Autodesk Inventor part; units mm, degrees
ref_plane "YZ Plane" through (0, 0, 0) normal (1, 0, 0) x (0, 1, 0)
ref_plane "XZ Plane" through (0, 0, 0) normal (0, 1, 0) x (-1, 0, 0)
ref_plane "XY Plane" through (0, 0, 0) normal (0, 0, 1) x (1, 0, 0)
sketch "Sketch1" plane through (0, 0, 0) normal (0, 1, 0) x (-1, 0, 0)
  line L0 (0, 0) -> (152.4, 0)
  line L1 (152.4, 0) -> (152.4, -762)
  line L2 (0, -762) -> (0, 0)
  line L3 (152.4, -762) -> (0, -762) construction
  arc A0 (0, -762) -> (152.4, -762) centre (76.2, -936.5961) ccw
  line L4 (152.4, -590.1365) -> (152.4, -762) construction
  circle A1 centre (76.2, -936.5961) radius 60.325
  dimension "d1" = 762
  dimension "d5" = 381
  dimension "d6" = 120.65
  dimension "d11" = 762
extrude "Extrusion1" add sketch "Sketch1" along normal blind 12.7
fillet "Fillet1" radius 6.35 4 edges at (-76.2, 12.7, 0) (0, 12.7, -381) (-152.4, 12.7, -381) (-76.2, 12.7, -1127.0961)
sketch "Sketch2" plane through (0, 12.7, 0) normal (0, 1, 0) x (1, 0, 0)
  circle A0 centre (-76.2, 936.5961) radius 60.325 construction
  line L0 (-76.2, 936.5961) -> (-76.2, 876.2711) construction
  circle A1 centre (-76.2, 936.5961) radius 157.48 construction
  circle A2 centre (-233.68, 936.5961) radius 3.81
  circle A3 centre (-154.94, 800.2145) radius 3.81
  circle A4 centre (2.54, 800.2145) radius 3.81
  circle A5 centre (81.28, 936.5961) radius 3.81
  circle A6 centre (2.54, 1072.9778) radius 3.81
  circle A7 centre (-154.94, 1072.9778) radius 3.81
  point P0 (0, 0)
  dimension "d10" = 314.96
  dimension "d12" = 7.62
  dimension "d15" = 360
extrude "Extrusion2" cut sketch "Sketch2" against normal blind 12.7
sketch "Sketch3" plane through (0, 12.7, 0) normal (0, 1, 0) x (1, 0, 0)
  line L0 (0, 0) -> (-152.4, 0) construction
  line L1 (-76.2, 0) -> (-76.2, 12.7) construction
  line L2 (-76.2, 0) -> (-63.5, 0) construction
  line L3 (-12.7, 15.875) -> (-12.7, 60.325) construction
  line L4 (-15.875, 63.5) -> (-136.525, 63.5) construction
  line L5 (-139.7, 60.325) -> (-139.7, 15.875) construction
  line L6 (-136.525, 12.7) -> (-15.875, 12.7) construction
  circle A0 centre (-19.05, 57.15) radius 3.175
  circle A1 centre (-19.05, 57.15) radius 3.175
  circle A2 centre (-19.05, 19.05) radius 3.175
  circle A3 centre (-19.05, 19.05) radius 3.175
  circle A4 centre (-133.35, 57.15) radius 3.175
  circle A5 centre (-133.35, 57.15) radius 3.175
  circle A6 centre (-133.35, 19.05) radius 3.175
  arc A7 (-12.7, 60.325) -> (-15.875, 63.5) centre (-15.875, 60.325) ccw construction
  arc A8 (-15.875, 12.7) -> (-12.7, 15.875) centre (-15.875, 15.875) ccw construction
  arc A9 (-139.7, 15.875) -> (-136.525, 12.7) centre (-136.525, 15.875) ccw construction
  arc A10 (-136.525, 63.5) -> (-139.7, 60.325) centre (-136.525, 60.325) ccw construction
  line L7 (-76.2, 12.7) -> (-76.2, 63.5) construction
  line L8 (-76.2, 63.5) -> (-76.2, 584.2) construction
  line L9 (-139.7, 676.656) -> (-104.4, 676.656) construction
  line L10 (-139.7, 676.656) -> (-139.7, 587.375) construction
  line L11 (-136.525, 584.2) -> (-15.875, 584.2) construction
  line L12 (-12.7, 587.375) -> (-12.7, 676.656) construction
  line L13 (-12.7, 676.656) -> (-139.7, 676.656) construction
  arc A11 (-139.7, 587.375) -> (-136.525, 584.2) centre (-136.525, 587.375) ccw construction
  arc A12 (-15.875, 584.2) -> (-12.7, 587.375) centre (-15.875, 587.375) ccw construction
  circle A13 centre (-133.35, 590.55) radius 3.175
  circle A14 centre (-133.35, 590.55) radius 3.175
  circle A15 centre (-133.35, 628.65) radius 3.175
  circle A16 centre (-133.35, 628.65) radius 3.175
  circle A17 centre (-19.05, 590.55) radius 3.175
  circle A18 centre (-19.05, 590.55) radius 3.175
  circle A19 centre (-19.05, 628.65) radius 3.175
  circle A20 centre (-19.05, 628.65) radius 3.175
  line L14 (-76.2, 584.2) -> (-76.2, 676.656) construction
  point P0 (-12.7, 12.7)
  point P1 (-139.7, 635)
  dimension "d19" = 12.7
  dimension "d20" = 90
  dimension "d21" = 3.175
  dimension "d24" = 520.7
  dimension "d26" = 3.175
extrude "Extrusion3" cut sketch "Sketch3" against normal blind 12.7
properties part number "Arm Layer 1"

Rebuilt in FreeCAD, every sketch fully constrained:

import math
import FreeCAD as App
import Part
import Sketcher
from FreeCAD import Vector
Q = App.Units.Quantity


def edges_at(feature, points):
    """Names of the edges that pass closest to the given points."""
    edges = feature.Shape.Edges
    near = lambda p: min(range(len(edges)), key=lambda i: edges[i].distToShape(Part.Vertex(*p))[0])
    return sorted({f"Edge{near(p) + 1}" for p in points})

doc = App.newDocument("Part")
body = doc.addObject("PartDesign::Body", "Body")

# Sketch on XZ plane
sketch1 = body.newObject("Sketcher::SketchObject", "Sketch")
sketch1.AttachmentSupport = (doc.getObject("XZ_Plane"), [""])
sketch1.MapMode = "FlatFace"
sketch1.addGeometry([
    Part.LineSegment(Vector(-152, 0, 0), Vector(0, 0, 0)),  # 0
    Part.LineSegment(Vector(0, 0, 0), Vector(0, -762, 0)),  # 1
    Part.ArcOfCircle(Part.Circle(Vector(-76, -937, 0), Vector(0, 0, 1), 190), math.radians(114), math.radians(426)),  # 2
    Part.LineSegment(Vector(-152, -762, 0), Vector(-152, 0, 0)),  # 3
    Part.Circle(Vector(-76, -937, 0), Vector(0, 0, 1), 60),  # 4
], False)
sketch1.addConstraint([
    Sketcher.Constraint("Coincident", 0, 2, 1, 1),
    Sketcher.Constraint("Coincident", 1, 2, 2, 2),
    Sketcher.Constraint("Coincident", 2, 1, 3, 1),
    Sketcher.Constraint("Coincident", 3, 2, 0, 1),
    Sketcher.Constraint("Horizontal", 0),
    Sketcher.Constraint("Vertical", 1),
    Sketcher.Constraint("Vertical", 3),
    Sketcher.Constraint("Coincident", 0, 2, -1, 1),
    Sketcher.Constraint("Coincident", 4, 3, 2, 3),
    Sketcher.Constraint("Horizontal", 1, 2, 2, 1),
    Sketcher.Constraint("Radius", 2, Q("7.5 in")),
    Sketcher.Constraint("Diameter", 4, Q("4.75 in")),
    Sketcher.Constraint("DistanceY", 1, 2, 1, 1, Q("30 in")),
    Sketcher.Constraint("DistanceX", 0, 1, 0, 2, Q("6 in")),
])
pad1 = body.newObject("PartDesign::Pad", "Pad")
pad1.Profile = sketch1
pad1.Length = Q("0.5 in")
pad1.Reversed = True
doc.recompute()

fillet = body.newObject("PartDesign::Fillet", "Fillet")
fillet.Base = (pad1, edges_at(pad1, [
    (-76.2, 12.7, 0),
    (0, 12.7, -381),
    (-152.4, 12.7, -381),
    (-76.2, 12.7, -1127.096),
]))
fillet.Radius = Q("0.25 in")

# Sketch on XZ plane
sketch2 = body.newObject("Sketcher::SketchObject", "Sketch001")
sketch2.AttachmentSupport = (doc.getObject("XZ_Plane"), [""])
sketch2.MapMode = "FlatFace"
sketch2.AttachmentOffset = App.Placement(Vector(0, 0, -0.5 * 25.4), App.Rotation())
sketch2.addGeometry([
    Part.Circle(Vector(-233.7, -936.6, 0), Vector(0, 0, 1), 3.8),  # 0
    Part.Circle(Vector(-154.9, -800.2, 0), Vector(0, 0, 1), 3.8),  # 1
    Part.Circle(Vector(2.5, -800.2, 0), Vector(0, 0, 1), 3.8),  # 2
    Part.Circle(Vector(81.3, -936.6, 0), Vector(0, 0, 1), 3.8),  # 3
    Part.Circle(Vector(2.5, -1073, 0), Vector(0, 0, 1), 3.8),  # 4
    Part.Circle(Vector(-154.9, -1073, 0), Vector(0, 0, 1), 3.8),  # 5
], False)
sketch2.addConstraint([
    Sketcher.Constraint("Equal", 0, 1),
    Sketcher.Constraint("Equal", 1, 2),
    Sketcher.Constraint("Equal", 2, 3),
    Sketcher.Constraint("Equal", 3, 4),
    Sketcher.Constraint("Equal", 4, 5),
    Sketcher.Constraint("Horizontal", 1, 3, 2, 3),
    Sketcher.Constraint("Horizontal", 0, 3, 3, 3),
    Sketcher.Constraint("Horizontal", 4, 3, 5, 3),
    Sketcher.Constraint("Vertical", 2, 3, 4, 3),
    Sketcher.Constraint("Vertical", 1, 3, 5, 3),
    Sketcher.Constraint("Diameter", 0, Q("0.3 in")),
    Sketcher.Constraint("DistanceX", 0, 3, 3, 3, Q("12.4 in")),
    Sketcher.Constraint("DistanceX", 0, 3, -1, 1, Q("9.2 in")),
    Sketcher.Constraint("DistanceX", 1, 3, -1, 1, Q("6.1 in")),
    Sketcher.Constraint("DistanceX", -1, 1, 2, 3, Q("0.1 in")),
    Sketcher.Constraint("DistanceY", 1, 3, -1, 1, Q("31.5045 in")),
    Sketcher.Constraint("DistanceY", 0, 3, -1, 1, Q("936.596 mm")),
    Sketcher.Constraint("DistanceY", 4, 3, -1, 1, Q("1072.9778 mm")),
])
pocket1 = body.newObject("PartDesign::Pocket", "Pocket")
pocket1.Profile = sketch2
pocket1.Length = Q("0.5 in")
pocket1.Reversed = True

# Sketch on XZ plane
sketch3 = body.newObject("Sketcher::SketchObject", "Sketch002")
sketch3.AttachmentSupport = (doc.getObject("XZ_Plane"), [""])
sketch3.MapMode = "FlatFace"
sketch3.AttachmentOffset = App.Placement(Vector(0, 0, -0.5 * 25.4), App.Rotation())
sketch3.addGeometry([
    Part.Circle(Vector(-19.1, -57.1, 0), Vector(0, 0, 1), 3.2),  # 0
    Part.Circle(Vector(-19.1, -19.1, 0), Vector(0, 0, 1), 3.2),  # 1
    Part.Circle(Vector(-133.3, -57.1, 0), Vector(0, 0, 1), 3.2),  # 2
    Part.Circle(Vector(-133.3, -19.1, 0), Vector(0, 0, 1), 3.2),  # 3
    Part.Circle(Vector(-133.3, -590.5, 0), Vector(0, 0, 1), 3.2),  # 4
    Part.Circle(Vector(-133.3, -628.6, 0), Vector(0, 0, 1), 3.2),  # 5
    Part.Circle(Vector(-19.1, -590.5, 0), Vector(0, 0, 1), 3.2),  # 6
    Part.Circle(Vector(-19.1, -628.6, 0), Vector(0, 0, 1), 3.2),  # 7
], False)
sketch3.addConstraint([
    Sketcher.Constraint("Equal", 0, 1),
    Sketcher.Constraint("Equal", 1, 2),
    Sketcher.Constraint("Equal", 2, 3),
    Sketcher.Constraint("Equal", 3, 4),
    Sketcher.Constraint("Equal", 4, 5),
    Sketcher.Constraint("Equal", 5, 6),
    Sketcher.Constraint("Equal", 6, 7),
    Sketcher.Constraint("Horizontal", 0, 3, 2, 3),
    Sketcher.Constraint("Horizontal", 1, 3, 3, 3),
    Sketcher.Constraint("Horizontal", 4, 3, 6, 3),
    Sketcher.Constraint("Horizontal", 5, 3, 7, 3),
    Sketcher.Constraint("Vertical", 0, 3, 1, 3),
    Sketcher.Constraint("Vertical", 2, 3, 3, 3),
    Sketcher.Constraint("Vertical", 3, 3, 4, 3),
    Sketcher.Constraint("Vertical", 4, 3, 5, 3),
    Sketcher.Constraint("Vertical", 1, 3, 6, 3),
    Sketcher.Constraint("Vertical", 6, 3, 7, 3),
    Sketcher.Constraint("Diameter", 0, Q("0.25 in")),
    Sketcher.Constraint("DistanceY", 4, 3, 2, 3, Q("21 in")),
    Sketcher.Constraint("DistanceY", 5, 3, 3, 3, Q("24 in")),
    Sketcher.Constraint("DistanceY", 0, 3, 1, 3, Q("1.5 in")),
    Sketcher.Constraint("DistanceX", 2, 3, 0, 3, Q("4.5 in")),
    Sketcher.Constraint("DistanceX", 0, 3, -1, 1, Q("0.75 in")),
    Sketcher.Constraint("DistanceY", 0, 3, -1, 1, Q("2.25 in")),
])
pocket2 = body.newObject("PartDesign::Pocket", "Pocket001")
pocket2.Profile = sketch3
pocket2.Length = Q("0.5 in")
pocket2.Reversed = True

doc.recompute()
